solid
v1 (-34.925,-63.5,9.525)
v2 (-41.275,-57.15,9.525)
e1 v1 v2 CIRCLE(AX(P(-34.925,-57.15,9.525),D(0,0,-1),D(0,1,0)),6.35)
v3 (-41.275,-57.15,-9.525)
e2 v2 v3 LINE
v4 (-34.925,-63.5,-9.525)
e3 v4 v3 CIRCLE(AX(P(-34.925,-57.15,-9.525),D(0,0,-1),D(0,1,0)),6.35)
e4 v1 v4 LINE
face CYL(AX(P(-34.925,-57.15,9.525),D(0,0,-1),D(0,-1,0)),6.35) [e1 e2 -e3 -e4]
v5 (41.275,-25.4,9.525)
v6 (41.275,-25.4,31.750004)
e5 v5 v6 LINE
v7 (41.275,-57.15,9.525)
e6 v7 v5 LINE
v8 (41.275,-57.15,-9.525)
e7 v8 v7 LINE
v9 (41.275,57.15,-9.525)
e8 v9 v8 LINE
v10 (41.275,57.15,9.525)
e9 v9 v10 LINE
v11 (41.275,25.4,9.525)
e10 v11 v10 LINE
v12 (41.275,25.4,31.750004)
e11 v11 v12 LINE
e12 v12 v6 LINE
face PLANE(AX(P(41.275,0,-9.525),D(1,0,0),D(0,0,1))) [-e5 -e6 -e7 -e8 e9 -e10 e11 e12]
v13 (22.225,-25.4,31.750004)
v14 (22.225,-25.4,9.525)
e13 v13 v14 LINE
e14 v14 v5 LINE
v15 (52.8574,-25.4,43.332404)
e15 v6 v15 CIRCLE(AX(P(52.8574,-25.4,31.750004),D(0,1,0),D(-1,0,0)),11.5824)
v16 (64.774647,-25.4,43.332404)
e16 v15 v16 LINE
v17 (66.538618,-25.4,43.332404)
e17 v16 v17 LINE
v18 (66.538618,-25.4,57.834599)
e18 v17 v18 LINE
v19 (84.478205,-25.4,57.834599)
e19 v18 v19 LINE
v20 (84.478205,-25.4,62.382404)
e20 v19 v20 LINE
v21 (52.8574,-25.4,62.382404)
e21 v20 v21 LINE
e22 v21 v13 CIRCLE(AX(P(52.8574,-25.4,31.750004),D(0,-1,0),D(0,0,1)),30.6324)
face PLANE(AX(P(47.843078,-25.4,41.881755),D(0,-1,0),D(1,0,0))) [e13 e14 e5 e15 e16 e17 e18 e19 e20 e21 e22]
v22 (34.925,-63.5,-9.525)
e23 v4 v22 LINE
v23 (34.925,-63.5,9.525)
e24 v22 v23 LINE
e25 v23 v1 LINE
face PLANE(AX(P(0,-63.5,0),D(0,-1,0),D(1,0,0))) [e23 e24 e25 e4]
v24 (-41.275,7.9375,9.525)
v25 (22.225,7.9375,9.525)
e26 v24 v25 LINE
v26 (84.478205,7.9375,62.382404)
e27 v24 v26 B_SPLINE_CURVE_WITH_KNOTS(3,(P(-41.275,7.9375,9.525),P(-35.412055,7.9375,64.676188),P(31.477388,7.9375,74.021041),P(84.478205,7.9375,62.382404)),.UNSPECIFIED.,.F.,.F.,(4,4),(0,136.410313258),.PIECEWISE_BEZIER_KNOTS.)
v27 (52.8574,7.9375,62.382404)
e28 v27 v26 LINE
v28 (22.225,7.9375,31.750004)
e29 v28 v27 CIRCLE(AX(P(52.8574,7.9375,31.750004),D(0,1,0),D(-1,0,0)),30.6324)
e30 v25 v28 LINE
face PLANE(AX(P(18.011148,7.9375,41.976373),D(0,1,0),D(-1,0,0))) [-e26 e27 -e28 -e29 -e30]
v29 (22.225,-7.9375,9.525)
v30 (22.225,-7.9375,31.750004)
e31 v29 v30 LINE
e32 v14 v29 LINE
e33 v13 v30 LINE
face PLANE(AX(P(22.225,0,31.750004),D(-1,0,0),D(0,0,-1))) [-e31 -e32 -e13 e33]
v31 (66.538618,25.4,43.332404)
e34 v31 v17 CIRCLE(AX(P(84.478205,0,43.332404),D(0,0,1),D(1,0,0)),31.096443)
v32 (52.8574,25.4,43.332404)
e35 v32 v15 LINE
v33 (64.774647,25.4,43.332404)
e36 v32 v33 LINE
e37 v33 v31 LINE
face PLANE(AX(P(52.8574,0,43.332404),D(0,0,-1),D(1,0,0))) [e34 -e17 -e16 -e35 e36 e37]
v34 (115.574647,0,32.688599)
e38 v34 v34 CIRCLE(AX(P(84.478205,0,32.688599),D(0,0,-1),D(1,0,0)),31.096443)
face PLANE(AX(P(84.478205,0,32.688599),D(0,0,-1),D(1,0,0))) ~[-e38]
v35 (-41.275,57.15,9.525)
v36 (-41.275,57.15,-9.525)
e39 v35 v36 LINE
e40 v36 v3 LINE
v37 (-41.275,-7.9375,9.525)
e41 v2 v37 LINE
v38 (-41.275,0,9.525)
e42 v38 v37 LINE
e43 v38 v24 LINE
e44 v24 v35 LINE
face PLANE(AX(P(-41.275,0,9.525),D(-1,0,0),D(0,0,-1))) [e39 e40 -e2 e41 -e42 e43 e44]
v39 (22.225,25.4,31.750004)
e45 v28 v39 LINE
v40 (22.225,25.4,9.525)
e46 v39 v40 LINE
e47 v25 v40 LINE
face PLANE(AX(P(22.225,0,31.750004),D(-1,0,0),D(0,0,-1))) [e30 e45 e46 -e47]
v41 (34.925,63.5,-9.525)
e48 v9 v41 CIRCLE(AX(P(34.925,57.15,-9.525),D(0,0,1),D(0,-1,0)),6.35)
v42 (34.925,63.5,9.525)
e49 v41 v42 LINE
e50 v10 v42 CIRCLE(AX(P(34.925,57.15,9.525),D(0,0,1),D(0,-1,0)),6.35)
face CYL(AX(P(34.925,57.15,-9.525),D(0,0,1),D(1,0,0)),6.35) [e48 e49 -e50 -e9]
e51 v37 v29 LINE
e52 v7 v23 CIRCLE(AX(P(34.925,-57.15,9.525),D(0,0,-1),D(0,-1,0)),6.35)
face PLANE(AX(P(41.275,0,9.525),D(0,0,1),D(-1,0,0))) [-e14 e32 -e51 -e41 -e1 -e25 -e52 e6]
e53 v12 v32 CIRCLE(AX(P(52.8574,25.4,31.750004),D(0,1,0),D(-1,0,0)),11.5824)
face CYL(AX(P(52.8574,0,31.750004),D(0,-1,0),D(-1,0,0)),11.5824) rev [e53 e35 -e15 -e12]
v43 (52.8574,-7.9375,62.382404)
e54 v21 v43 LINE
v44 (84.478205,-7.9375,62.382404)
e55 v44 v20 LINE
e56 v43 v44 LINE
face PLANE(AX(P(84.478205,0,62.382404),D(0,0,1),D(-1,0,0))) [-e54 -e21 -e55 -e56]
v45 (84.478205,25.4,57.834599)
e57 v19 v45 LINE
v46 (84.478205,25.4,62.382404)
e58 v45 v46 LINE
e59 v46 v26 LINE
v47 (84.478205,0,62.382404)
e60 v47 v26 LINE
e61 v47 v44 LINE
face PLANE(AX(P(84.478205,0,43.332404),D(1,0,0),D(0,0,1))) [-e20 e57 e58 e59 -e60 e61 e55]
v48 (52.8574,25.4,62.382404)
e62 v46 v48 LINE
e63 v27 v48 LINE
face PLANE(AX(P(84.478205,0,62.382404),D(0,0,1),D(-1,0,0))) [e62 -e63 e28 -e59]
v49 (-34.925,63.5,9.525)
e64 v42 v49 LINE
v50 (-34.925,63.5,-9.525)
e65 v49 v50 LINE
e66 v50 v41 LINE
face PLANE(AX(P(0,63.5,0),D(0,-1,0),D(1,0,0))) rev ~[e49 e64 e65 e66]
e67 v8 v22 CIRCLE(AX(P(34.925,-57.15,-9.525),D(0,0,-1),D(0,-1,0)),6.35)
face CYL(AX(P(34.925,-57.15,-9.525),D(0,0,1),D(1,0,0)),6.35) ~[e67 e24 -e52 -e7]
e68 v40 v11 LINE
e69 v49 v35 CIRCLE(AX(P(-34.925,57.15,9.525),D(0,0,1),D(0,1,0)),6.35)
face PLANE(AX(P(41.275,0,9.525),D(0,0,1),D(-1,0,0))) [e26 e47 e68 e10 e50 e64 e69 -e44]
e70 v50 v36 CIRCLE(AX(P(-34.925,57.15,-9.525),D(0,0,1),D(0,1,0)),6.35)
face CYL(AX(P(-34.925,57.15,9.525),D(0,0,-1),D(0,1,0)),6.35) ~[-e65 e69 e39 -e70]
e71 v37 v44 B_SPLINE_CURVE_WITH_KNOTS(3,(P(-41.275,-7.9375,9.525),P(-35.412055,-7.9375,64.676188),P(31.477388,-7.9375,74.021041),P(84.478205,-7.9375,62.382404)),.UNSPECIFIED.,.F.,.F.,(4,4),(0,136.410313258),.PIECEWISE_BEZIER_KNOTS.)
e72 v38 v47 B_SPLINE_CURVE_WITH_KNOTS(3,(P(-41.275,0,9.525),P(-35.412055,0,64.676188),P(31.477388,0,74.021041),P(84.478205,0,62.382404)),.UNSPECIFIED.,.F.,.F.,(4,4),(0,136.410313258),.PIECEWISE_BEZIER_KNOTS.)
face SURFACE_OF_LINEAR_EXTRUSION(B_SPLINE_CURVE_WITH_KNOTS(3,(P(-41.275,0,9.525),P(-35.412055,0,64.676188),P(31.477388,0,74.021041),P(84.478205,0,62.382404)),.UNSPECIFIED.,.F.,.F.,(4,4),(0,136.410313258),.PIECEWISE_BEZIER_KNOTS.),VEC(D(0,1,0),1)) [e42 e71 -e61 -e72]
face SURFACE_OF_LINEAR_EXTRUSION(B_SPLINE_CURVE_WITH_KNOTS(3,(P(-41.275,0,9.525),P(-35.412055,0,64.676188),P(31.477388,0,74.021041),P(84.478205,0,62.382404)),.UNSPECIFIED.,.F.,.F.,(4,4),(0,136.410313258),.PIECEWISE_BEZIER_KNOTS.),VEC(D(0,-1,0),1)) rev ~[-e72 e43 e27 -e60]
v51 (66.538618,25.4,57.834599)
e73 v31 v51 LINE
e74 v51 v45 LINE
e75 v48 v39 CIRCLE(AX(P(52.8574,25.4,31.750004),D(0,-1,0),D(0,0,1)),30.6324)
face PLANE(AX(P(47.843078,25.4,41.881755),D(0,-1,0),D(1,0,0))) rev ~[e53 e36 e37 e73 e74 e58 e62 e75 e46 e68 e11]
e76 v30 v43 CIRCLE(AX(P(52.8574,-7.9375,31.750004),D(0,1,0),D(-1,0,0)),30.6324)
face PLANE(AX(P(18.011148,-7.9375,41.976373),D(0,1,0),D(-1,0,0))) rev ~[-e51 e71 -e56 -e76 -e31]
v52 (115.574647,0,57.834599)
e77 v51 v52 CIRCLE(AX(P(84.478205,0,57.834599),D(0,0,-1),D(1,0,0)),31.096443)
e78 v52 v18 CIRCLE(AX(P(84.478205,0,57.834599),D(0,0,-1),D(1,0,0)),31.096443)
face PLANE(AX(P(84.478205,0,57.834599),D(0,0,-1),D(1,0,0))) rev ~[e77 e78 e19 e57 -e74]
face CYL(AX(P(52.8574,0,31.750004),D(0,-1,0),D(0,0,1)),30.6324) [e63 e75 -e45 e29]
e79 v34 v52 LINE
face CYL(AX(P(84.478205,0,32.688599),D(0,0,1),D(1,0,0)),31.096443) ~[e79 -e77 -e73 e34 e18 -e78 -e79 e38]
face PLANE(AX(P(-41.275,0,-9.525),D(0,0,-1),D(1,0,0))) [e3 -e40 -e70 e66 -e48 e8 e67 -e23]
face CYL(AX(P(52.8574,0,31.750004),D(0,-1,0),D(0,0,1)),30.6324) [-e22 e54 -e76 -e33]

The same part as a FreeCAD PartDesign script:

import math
import FreeCAD as App
import Part
import Sketcher

V = App.Vector
Q = App.Units.Quantity


def edges_at(feature, points):
    """Names of the edges that pass closest to the given points."""
    edges = feature.Shape.Edges
    near = lambda p: min(range(len(edges)), key=lambda i: edges[i].distToShape(Part.Vertex(*p))[0])
    return sorted({f"Edge{near(p) + 1}" for p in points})

doc = App.newDocument("Part")
body = doc.addObject("PartDesign::Body", "Body")

sketch1 = body.newObject("Sketcher::SketchObject", "Sketch")
sketch1.AttachmentSupport = (doc.getObject("XZ_Plane"), [""])
sketch1.MapMode = "FlatFace"
sketch1.addGeometry(Part.LineSegment(V(-41, 10, 0), V(-41, -10, 0)), False)
sketch1.addGeometry(Part.LineSegment(V(-41, -10, 0), V(41, -10, 0)), False)
sketch1.addGeometry(Part.LineSegment(V(41, -10, 0), V(41, 10, 0)), False)
sketch1.addGeometry(Part.LineSegment(V(41, 10, 0), V(-41, 10, 0)), False)
sketch1.addConstraint(Sketcher.Constraint("Coincident", 0, 2, 1, 1))
sketch1.addConstraint(Sketcher.Constraint("Coincident", 1, 2, 2, 1))
sketch1.addConstraint(Sketcher.Constraint("Coincident", 2, 2, 3, 1))
sketch1.addConstraint(Sketcher.Constraint("Coincident", 3, 2, 0, 1))
sketch1.addConstraint(Sketcher.Constraint("Vertical", 0))
sketch1.addConstraint(Sketcher.Constraint("Horizontal", 1))
sketch1.addConstraint(Sketcher.Constraint("Vertical", 2))
sketch1.addConstraint(Sketcher.Constraint("Horizontal", 3))
sketch1.addConstraint(Sketcher.Constraint("Symmetric", 0, 2, 2, 2, -1, 1))
sketch1.addConstraint(Sketcher.Constraint("DistanceX", 1, 1, 1, 2, Q("3.25 in")))
sketch1.addConstraint(Sketcher.Constraint("DistanceY", 0, 2, 0, 1, Q("0.75 in")))
pad1 = body.newObject("PartDesign::Pad", "Pad")
pad1.Profile = sketch1
pad1.Length = Q("5 in")
pad1.Midplane = True

sketch2 = body.newObject("Sketcher::SketchObject", "Sketch001")
sketch2.AttachmentSupport = (doc.getObject("XZ_Plane"), [""])
sketch2.MapMode = "FlatFace"
sketch2.addGeometry(Part.LineSegment(V(22, 10, 0), V(41, 10, 0)), False)
sketch2.addGeometry(Part.LineSegment(V(41, 10, 0), V(41, 32, 0)), False)
sketch2.addGeometry(Part.ArcOfCircle(Part.Circle(V(53, 32, 0), V(0, 0, 1), 12), math.radians(90), math.radians(180)), False)
sketch2.addGeometry(Part.LineSegment(V(53, 43, 0), V(65, 43, 0)), False)
sketch2.addGeometry(Part.LineSegment(V(65, 43, 0), V(84, 43, 0)), False)
sketch2.addGeometry(Part.LineSegment(V(84, 43, 0), V(84, 62, 0)), False)
sketch2.addGeometry(Part.LineSegment(V(84, 62, 0), V(53, 62, 0)), False)
sketch2.addGeometry(Part.ArcOfCircle(Part.Circle(V(53, 32, 0), V(0, 0, 1), 31), math.radians(90), math.radians(180)), False)
sketch2.addGeometry(Part.LineSegment(V(22, 32, 0), V(22, 10, 0)), False)
sketch2.addConstraint(Sketcher.Constraint("Coincident", 0, 2, 1, 1))
sketch2.addConstraint(Sketcher.Constraint("Tangent", 1, 2, 2, 2))
sketch2.addConstraint(Sketcher.Constraint("Tangent", 2, 1, 3, 1))
sketch2.addConstraint(Sketcher.Constraint("Coincident", 3, 2, 4, 1))
sketch2.addConstraint(Sketcher.Constraint("Coincident", 4, 2, 5, 1))
sketch2.addConstraint(Sketcher.Constraint("Coincident", 5, 2, 6, 1))
sketch2.addConstraint(Sketcher.Constraint("Tangent", 6, 2, 7, 1))
sketch2.addConstraint(Sketcher.Constraint("Tangent", 7, 2, 8, 1))
sketch2.addConstraint(Sketcher.Constraint("Coincident", 8, 2, 0, 1))
sketch2.addConstraint(Sketcher.Constraint("Horizontal", 0))
sketch2.addConstraint(Sketcher.Constraint("Vertical", 1))
sketch2.addConstraint(Sketcher.Constraint("Horizontal", 3))
sketch2.addConstraint(Sketcher.Constraint("Horizontal", 4))
sketch2.addConstraint(Sketcher.Constraint("Vertical", 5))
sketch2.addConstraint(Sketcher.Constraint("Horizontal", 6))
sketch2.addConstraint(Sketcher.Constraint("Vertical", 8))
sketch2.addConstraint(Sketcher.Constraint("Coincident", 7, 3, 2, 3))
sketch2.addConstraint(Sketcher.Constraint("Radius", 2, Q("0.456 in")))
sketch2.addConstraint(Sketcher.Constraint("Radius", 7, Q("1.206 in")))
sketch2.addConstraint(Sketcher.Constraint("DistanceY", 1, 1, 1, 2, Q("0.8750001 in")))
sketch2.addConstraint(Sketcher.Constraint("DistanceY", -1, 1, 2, 3, Q("1.2500001 in")))
sketch2.addConstraint(Sketcher.Constraint("DistanceX", -1, 1, 2, 3, Q("2.081 in")))
sketch2.addConstraint(Sketcher.Constraint("DistanceX", 3, 1, 3, 2, Q("11.917247 mm")))
sketch2.addConstraint(Sketcher.Constraint("DistanceX", 4, 1, 4, 2, Q("19.703557 mm")))
pad2 = body.newObject("PartDesign::Pad", "Pad001")
pad2.Profile = sketch2
pad2.Length = Q("2 in")
pad2.Midplane = True

sketch3 = body.newObject("Sketcher::SketchObject", "Sketch002")
sketch3.AttachmentSupport = (doc.getObject("XZ_Plane"), [""])
sketch3.MapMode = "FlatFace"
sketch3.addGeometry(Part.BSplineCurve([V(-41.275, 9.525, 0), V(-35.412055, 64.676188, 0), V(31.477388, 74.021041, 0), V(84.478205, 62.382404, 0)], [4, 4], [0, 136.410313258], False, 3, [1, 1, 1, 1], False), False)
sketch3.addGeometry(Part.LineSegment(V(-41.275, 9.525, 0), V(22.225, 9.525, 0)), False)
sketch3.addGeometry(Part.LineSegment(V(22.225, 9.525, 0), V(22.225, 31.750004, 0)), False)
sketch3.addGeometry(Part.ArcOfCircle(Part.Circle(V(52.8574, 31.750004, 0), V(0, 0, 1), 30.6324), math.radians(90), math.radians(180)), False)
sketch3.addGeometry(Part.LineSegment(V(52.8574, 62.382404, 0), V(84.478205, 62.382404, 0)), False)
sketch3.addConstraint(Sketcher.Constraint("Block", 0))
sketch3.addConstraint(Sketcher.Constraint("Coincident", 0, 1, 1, 1))
sketch3.addConstraint(Sketcher.Constraint("Coincident", 1, 2, 2, 1))
sketch3.addConstraint(Sketcher.Constraint("Tangent", 2, 2, 3, 2))
sketch3.addConstraint(Sketcher.Constraint("Tangent", 3, 1, 4, 1))
sketch3.addConstraint(Sketcher.Constraint("Coincident", 4, 2, 0, 2))
sketch3.addConstraint(Sketcher.Constraint("Horizontal", 1))
sketch3.addConstraint(Sketcher.Constraint("Vertical", 2))
sketch3.addConstraint(Sketcher.Constraint("Horizontal", 4))
sketch3.addConstraint(Sketcher.Constraint("DistanceX", 1, 1, 1, 2, Q("2.5 in")))
sketch3.addConstraint(Sketcher.Constraint("Radius", 3, Q("1.206 in")))
pad3 = body.newObject("PartDesign::Pad", "Pad002")
pad3.Profile = sketch3
pad3.Length = Q("0.625 in")
pad3.Midplane = True

sketch4 = body.newObject("Sketcher::SketchObject", "Sketch003")
sketch4.AttachmentSupport = (doc.getObject("XZ_Plane"), [""])
sketch4.MapMode = "FlatFace"
sketch4.addGeometry(Part.LineSegment(V(116, 58, 0), V(84, 58, 0)), False)
sketch4.addGeometry(Part.LineSegment(V(84, 58, 0), V(84, 33, 0)), False)
sketch4.addGeometry(Part.LineSegment(V(84, 33, 0), V(116, 33, 0)), False)
sketch4.addGeometry(Part.LineSegment(V(116, 33, 0), V(116, 58, 0)), False)
sketch4.addGeometry(Part.LineSegment(V(84, 58, 0), V(84, 33, 0)), True)
sketch4.addConstraint(Sketcher.Constraint("Coincident", 0, 2, 1, 1))
sketch4.addConstraint(Sketcher.Constraint("Coincident", 1, 2, 2, 1))
sketch4.addConstraint(Sketcher.Constraint("Coincident", 2, 2, 3, 1))
sketch4.addConstraint(Sketcher.Constraint("Coincident", 3, 2, 0, 1))
sketch4.addConstraint(Sketcher.Constraint("Horizontal", 0))
sketch4.addConstraint(Sketcher.Constraint("Vertical", 1))
sketch4.addConstraint(Sketcher.Constraint("Horizontal", 2))
sketch4.addConstraint(Sketcher.Constraint("Vertical", 3))
sketch4.addConstraint(Sketcher.Constraint("Vertical", 4))
sketch4.addConstraint(Sketcher.Constraint("Coincident", 4, 1, 0, 2))
sketch4.addConstraint(Sketcher.Constraint("Horizontal", 2, 2, 4, 2))
sketch4.addConstraint(Sketcher.Constraint("DistanceY", 1, 2, 1, 1, Q("0.99 in")))
sketch4.addConstraint(Sketcher.Constraint("DistanceY", -1, 1, 0, 2, Q("57.834599 mm")))
sketch4.addConstraint(Sketcher.Constraint("DistanceX", 0, 2, 0, 1, Q("31.096443 mm")))
sketch4.addConstraint(Sketcher.Constraint("DistanceX", -1, 1, 0, 2, Q("84.478205 mm")))
revolution = body.newObject("PartDesign::Revolution", "Revolution")
revolution.Profile = sketch4
revolution.ReferenceAxis = (sketch4, ["Axis0"])
revolution.Angle = 360
doc.recompute()

fillet = body.newObject("PartDesign::Fillet", "Fillet")
fillet.Base = (revolution, edges_at(revolution, [
    (41.275, -63.5, 0),
    (-41.275, -63.5, 0),
    (-41.275, 63.5, 0),
    (41.275, 63.5, 0),
]))
fillet.Radius = Q("0.25 in")

doc.recompute()
